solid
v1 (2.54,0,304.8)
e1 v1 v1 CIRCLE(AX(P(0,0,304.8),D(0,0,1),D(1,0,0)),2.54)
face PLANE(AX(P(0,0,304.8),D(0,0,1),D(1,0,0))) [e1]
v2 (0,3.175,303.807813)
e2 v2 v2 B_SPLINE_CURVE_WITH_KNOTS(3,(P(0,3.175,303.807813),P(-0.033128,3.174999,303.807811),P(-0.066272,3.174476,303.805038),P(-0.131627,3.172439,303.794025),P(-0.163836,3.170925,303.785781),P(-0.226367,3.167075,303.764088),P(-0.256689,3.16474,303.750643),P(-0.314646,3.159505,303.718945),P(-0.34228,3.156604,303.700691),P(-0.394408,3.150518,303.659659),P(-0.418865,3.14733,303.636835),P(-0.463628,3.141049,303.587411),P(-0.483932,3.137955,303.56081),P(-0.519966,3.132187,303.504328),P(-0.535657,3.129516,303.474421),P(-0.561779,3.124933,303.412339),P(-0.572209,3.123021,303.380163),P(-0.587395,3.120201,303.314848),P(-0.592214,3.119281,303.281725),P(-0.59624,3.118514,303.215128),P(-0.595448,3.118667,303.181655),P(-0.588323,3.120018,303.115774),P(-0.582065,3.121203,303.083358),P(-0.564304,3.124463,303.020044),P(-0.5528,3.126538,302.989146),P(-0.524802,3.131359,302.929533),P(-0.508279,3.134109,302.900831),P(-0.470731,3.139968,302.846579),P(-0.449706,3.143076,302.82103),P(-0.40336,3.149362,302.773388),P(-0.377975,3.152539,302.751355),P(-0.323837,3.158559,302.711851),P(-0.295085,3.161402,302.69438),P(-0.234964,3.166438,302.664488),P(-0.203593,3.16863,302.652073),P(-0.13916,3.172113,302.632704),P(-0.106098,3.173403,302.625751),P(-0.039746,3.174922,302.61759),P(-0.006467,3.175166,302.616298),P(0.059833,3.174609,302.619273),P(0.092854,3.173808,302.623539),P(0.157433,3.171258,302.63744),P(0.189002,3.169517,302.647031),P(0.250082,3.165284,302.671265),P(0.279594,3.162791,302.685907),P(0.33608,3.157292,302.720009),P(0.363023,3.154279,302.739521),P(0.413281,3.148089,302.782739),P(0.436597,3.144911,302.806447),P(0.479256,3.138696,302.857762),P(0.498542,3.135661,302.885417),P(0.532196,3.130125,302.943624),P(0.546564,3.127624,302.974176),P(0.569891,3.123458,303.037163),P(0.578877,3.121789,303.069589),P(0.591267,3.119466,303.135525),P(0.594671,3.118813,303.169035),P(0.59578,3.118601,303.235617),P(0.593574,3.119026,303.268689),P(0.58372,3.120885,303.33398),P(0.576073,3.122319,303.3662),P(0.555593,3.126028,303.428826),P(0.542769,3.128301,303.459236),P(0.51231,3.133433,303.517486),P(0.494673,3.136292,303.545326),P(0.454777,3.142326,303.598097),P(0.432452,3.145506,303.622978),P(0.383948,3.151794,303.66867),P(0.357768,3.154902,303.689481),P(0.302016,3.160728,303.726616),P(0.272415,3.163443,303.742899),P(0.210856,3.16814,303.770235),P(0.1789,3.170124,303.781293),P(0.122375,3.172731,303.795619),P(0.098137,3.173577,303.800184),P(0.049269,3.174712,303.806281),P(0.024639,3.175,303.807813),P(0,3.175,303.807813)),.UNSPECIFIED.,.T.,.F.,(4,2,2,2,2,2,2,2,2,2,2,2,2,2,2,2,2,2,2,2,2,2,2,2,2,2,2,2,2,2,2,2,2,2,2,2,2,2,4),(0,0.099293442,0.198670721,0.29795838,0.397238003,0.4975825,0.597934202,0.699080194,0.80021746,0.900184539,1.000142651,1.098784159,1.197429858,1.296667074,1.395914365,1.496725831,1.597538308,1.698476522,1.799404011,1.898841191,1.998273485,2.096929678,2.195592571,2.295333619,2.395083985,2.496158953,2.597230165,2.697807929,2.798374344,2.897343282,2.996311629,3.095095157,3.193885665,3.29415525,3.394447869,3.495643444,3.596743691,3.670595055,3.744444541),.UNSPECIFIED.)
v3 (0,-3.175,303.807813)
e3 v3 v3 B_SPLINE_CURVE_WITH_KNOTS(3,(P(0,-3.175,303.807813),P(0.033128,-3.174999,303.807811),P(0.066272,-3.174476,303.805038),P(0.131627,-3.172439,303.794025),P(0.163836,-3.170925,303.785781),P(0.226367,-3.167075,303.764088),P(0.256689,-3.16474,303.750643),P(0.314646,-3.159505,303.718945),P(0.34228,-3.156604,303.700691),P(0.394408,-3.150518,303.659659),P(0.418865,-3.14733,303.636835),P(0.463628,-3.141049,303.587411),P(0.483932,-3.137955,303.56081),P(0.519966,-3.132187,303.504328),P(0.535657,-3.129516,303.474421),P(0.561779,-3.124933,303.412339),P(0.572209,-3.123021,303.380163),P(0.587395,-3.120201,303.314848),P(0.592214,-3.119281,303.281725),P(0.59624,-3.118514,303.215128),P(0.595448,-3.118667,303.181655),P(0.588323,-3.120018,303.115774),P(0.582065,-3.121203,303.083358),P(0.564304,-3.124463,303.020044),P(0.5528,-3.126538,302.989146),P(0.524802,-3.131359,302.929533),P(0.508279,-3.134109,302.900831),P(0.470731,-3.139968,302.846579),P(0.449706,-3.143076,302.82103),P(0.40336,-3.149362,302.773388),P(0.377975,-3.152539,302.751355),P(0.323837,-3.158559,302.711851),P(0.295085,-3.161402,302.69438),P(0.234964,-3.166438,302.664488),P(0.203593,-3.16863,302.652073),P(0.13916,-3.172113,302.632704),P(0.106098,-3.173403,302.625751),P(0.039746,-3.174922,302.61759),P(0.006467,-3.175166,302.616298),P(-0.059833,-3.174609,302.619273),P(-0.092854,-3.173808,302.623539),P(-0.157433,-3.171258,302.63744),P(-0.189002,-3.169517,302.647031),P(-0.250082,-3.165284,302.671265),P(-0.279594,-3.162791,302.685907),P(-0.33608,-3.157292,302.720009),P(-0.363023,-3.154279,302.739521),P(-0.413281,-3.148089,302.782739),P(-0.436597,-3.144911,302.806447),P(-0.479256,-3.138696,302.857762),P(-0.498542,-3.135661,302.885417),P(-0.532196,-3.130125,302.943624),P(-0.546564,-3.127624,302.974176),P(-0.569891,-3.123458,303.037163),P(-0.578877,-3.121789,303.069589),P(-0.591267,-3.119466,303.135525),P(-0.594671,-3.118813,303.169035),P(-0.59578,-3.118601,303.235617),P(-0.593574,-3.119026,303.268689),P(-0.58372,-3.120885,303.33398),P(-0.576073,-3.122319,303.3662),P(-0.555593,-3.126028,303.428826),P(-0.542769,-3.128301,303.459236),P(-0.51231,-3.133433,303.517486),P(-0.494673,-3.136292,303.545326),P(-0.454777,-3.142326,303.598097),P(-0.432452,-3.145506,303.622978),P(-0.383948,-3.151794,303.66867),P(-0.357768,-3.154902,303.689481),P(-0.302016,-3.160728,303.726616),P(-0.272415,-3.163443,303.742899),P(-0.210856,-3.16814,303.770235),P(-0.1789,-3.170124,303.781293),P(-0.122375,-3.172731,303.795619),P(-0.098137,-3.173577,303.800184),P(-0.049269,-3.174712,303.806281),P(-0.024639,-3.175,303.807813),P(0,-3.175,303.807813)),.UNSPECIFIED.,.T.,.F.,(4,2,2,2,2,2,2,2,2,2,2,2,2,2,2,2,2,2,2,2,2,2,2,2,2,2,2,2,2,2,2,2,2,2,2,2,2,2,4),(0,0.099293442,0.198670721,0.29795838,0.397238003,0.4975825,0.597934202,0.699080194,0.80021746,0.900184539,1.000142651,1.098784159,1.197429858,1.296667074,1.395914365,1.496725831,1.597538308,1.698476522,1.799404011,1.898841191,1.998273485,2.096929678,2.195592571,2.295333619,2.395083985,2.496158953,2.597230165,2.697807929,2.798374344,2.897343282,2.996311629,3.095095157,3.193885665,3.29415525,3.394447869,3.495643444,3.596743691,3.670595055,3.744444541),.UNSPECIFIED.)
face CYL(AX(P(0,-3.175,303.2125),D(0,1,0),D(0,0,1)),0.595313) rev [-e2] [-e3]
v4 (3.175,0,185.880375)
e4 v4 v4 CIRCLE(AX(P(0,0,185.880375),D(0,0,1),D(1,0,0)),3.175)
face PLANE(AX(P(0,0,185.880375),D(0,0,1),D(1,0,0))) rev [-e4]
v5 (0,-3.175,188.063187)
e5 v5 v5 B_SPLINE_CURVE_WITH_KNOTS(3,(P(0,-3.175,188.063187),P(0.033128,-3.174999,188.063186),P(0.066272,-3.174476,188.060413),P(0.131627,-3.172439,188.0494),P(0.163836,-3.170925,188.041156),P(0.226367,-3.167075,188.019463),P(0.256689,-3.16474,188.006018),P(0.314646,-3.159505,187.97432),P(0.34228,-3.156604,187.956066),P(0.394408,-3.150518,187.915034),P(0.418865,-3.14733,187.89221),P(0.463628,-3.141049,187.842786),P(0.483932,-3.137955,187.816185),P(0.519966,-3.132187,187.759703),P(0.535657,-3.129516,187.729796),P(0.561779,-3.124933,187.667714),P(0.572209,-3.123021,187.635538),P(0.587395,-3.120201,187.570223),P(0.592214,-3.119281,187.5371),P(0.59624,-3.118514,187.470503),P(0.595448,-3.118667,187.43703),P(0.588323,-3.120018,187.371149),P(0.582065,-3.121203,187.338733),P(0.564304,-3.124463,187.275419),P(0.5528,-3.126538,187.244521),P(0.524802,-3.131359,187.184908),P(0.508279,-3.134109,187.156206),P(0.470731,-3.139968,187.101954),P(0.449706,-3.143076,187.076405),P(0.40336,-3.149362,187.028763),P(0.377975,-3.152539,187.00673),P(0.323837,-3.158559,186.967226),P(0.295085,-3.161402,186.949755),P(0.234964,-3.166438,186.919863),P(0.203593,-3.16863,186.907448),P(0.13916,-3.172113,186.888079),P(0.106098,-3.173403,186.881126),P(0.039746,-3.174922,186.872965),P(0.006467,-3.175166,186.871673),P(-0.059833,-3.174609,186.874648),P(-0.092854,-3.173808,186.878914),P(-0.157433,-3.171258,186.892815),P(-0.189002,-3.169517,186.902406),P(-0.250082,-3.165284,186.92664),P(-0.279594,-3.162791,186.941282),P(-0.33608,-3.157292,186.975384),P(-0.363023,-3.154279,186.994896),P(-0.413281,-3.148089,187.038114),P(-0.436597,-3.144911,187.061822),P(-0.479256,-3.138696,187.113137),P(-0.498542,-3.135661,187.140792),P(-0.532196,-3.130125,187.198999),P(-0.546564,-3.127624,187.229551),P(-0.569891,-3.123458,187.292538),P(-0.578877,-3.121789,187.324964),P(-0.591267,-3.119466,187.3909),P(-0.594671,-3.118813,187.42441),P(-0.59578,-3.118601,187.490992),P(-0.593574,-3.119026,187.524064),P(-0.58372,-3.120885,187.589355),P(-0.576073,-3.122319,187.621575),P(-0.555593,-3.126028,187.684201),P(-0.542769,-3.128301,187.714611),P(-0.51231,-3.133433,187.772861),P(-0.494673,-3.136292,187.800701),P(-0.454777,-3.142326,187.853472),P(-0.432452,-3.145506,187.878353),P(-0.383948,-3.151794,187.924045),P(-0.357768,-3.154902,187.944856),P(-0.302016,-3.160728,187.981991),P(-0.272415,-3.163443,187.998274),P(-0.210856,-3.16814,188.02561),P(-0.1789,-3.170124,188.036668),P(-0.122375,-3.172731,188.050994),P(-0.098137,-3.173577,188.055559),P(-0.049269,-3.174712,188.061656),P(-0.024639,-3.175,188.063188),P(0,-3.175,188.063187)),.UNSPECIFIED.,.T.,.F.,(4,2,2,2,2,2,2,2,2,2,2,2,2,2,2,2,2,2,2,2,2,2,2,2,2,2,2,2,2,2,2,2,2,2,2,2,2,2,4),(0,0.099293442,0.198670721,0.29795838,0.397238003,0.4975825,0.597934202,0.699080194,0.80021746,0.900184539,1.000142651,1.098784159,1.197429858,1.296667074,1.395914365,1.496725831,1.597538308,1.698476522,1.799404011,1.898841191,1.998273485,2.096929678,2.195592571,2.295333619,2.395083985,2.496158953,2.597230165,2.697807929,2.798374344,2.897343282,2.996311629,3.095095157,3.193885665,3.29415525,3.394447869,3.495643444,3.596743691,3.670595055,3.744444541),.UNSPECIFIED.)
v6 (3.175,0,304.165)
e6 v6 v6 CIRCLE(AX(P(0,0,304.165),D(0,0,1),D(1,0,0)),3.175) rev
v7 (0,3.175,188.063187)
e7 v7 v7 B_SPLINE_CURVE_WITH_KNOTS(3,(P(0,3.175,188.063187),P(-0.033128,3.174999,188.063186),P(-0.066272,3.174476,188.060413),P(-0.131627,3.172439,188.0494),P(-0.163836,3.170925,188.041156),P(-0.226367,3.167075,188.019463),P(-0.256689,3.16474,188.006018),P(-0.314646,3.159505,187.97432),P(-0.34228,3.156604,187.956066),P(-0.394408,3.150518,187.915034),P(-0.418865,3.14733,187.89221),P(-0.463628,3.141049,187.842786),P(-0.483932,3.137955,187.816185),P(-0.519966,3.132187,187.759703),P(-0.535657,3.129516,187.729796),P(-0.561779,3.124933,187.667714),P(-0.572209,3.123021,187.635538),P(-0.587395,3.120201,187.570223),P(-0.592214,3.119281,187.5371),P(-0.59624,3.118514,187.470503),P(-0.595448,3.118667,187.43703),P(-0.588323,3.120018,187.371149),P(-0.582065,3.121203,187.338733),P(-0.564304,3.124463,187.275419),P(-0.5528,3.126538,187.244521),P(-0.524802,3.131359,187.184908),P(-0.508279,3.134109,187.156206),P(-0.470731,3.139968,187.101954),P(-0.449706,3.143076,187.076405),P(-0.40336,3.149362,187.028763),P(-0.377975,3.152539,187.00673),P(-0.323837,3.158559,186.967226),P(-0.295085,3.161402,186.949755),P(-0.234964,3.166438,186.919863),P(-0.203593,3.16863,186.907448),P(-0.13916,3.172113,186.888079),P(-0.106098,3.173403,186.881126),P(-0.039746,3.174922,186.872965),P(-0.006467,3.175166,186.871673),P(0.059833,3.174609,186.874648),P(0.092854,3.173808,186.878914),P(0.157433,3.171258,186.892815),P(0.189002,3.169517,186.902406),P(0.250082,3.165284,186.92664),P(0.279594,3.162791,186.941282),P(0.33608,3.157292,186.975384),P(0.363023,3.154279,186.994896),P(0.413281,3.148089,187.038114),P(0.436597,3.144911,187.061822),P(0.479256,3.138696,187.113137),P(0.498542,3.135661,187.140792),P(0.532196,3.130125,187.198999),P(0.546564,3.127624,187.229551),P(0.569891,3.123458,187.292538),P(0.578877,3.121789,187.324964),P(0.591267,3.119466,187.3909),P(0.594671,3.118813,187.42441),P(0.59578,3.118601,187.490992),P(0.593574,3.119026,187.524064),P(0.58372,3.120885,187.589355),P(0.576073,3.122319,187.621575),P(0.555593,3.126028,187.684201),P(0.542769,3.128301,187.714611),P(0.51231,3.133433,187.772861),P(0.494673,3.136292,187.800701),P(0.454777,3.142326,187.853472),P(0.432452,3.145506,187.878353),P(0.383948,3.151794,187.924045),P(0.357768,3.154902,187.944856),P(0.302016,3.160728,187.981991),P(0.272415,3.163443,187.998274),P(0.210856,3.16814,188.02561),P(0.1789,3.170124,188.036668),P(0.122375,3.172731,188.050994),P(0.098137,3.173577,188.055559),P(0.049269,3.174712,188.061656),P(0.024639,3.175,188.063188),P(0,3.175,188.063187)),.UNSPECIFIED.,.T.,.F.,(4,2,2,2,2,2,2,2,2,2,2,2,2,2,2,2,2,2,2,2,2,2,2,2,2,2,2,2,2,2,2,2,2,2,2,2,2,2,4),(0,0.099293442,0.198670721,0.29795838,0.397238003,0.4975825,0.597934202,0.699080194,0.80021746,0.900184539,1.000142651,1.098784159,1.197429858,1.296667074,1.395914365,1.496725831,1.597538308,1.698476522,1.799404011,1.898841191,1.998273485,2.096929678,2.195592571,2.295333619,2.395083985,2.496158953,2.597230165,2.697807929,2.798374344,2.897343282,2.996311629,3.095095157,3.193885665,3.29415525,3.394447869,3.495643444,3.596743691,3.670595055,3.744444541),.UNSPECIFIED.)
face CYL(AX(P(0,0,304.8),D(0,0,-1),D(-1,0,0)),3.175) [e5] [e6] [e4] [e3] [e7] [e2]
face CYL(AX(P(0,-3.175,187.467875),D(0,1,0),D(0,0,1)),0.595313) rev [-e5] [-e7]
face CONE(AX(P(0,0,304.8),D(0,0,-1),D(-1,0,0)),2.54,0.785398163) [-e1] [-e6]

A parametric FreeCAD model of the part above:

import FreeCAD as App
import Part
import Sketcher
from FreeCAD import Vector
Q = App.Units.Quantity


def edges_at(feature, points):
    """Names of the edges that pass closest to the given points."""
    edges = feature.Shape.Edges
    near = lambda p: min(range(len(edges)), key=lambda i: edges[i].distToShape(Part.Vertex(*p))[0])
    return sorted({f"Edge{near(p) + 1}" for p in points})

doc = App.newDocument("Part")
body = doc.addObject("PartDesign::Body", "Body")

sketch1 = body.newObject("Sketcher::SketchObject", "Sketch")
sketch1.AttachmentSupport = (doc.getObject("XY_Plane"), [""])
sketch1.MapMode = "FlatFace"
sketch1.addGeometry(Part.Circle(Vector(0, 0, 0), Vector(0, 0, 1), 3.175), False)
sketch1.addConstraint([
    Sketcher.Constraint("Coincident", 0, 3, -1, 1),
    Sketcher.Constraint("Diameter", 0, Q("0.25 in")),
])
pad1 = body.newObject("PartDesign::Pad", "Pad")
pad1.Profile = sketch1
pad1.Length = Q("24 in")
pad1.Midplane = True
doc.recompute()

chamfer = body.newObject("PartDesign::Chamfer", "Chamfer")
chamfer.Base = (pad1, edges_at(pad1, [(-3.175, 0, -304.8), (-3.175, 0, 304.8)]))
chamfer.Size = Q("0.025 in")

sketch2 = body.newObject("Sketcher::SketchObject", "Sketch001")
sketch2.AttachmentSupport = (doc.getObject("XY_Plane"), [""])
sketch2.MapMode = "FlatFace"
sketch2.AttachmentOffset = App.Placement(Vector(0, 0, 185.880375), App.Rotation())
sketch2.addGeometry(Part.Circle(Vector(0, 0, 0), Vector(0, 0, 1), 3.175), False)
sketch2.addConstraint([
    Sketcher.Constraint("Coincident", 0, 3, -1, 1),
    Sketcher.Constraint("Diameter", 0, Q("0.25 in")),
])
pocket1 = body.newObject("PartDesign::Pocket", "Pocket")
pocket1.Profile = sketch2
pocket1.Type = "ThroughAll"

sketch3 = body.newObject("Sketcher::SketchObject", "Sketch002")
sketch3.AttachmentSupport = (doc.getObject("XZ_Plane"), [""])
sketch3.MapMode = "FlatFace"
sketch3.addGeometry([
    Part.Circle(Vector(0, 187.467875, 0), Vector(0, 0, 1), 0.595313),
    Part.Circle(Vector(0, 303.2125, 0), Vector(0, 0, 1), 0.595313),
], False)
sketch3.addConstraint([
    Sketcher.Constraint("Equal", 0, 1),
    Sketcher.Constraint("PointOnObject", 0, 3, -2),
    Sketcher.Constraint("PointOnObject", 1, 3, -2),
    Sketcher.Constraint("Diameter", 0, Q("0.046875 in")),
    Sketcher.Constraint("DistanceY", -1, 1, 1, 3, Q("11.9375 in")),
    Sketcher.Constraint("DistanceY", -1, 1, 0, 3, 187.467875),
])
pocket2 = body.newObject("PartDesign::Pocket", "Pocket001")
pocket2.Profile = sketch3
pocket2.Type = "ThroughAll"
pocket2.Midplane = True

doc.recompute()
